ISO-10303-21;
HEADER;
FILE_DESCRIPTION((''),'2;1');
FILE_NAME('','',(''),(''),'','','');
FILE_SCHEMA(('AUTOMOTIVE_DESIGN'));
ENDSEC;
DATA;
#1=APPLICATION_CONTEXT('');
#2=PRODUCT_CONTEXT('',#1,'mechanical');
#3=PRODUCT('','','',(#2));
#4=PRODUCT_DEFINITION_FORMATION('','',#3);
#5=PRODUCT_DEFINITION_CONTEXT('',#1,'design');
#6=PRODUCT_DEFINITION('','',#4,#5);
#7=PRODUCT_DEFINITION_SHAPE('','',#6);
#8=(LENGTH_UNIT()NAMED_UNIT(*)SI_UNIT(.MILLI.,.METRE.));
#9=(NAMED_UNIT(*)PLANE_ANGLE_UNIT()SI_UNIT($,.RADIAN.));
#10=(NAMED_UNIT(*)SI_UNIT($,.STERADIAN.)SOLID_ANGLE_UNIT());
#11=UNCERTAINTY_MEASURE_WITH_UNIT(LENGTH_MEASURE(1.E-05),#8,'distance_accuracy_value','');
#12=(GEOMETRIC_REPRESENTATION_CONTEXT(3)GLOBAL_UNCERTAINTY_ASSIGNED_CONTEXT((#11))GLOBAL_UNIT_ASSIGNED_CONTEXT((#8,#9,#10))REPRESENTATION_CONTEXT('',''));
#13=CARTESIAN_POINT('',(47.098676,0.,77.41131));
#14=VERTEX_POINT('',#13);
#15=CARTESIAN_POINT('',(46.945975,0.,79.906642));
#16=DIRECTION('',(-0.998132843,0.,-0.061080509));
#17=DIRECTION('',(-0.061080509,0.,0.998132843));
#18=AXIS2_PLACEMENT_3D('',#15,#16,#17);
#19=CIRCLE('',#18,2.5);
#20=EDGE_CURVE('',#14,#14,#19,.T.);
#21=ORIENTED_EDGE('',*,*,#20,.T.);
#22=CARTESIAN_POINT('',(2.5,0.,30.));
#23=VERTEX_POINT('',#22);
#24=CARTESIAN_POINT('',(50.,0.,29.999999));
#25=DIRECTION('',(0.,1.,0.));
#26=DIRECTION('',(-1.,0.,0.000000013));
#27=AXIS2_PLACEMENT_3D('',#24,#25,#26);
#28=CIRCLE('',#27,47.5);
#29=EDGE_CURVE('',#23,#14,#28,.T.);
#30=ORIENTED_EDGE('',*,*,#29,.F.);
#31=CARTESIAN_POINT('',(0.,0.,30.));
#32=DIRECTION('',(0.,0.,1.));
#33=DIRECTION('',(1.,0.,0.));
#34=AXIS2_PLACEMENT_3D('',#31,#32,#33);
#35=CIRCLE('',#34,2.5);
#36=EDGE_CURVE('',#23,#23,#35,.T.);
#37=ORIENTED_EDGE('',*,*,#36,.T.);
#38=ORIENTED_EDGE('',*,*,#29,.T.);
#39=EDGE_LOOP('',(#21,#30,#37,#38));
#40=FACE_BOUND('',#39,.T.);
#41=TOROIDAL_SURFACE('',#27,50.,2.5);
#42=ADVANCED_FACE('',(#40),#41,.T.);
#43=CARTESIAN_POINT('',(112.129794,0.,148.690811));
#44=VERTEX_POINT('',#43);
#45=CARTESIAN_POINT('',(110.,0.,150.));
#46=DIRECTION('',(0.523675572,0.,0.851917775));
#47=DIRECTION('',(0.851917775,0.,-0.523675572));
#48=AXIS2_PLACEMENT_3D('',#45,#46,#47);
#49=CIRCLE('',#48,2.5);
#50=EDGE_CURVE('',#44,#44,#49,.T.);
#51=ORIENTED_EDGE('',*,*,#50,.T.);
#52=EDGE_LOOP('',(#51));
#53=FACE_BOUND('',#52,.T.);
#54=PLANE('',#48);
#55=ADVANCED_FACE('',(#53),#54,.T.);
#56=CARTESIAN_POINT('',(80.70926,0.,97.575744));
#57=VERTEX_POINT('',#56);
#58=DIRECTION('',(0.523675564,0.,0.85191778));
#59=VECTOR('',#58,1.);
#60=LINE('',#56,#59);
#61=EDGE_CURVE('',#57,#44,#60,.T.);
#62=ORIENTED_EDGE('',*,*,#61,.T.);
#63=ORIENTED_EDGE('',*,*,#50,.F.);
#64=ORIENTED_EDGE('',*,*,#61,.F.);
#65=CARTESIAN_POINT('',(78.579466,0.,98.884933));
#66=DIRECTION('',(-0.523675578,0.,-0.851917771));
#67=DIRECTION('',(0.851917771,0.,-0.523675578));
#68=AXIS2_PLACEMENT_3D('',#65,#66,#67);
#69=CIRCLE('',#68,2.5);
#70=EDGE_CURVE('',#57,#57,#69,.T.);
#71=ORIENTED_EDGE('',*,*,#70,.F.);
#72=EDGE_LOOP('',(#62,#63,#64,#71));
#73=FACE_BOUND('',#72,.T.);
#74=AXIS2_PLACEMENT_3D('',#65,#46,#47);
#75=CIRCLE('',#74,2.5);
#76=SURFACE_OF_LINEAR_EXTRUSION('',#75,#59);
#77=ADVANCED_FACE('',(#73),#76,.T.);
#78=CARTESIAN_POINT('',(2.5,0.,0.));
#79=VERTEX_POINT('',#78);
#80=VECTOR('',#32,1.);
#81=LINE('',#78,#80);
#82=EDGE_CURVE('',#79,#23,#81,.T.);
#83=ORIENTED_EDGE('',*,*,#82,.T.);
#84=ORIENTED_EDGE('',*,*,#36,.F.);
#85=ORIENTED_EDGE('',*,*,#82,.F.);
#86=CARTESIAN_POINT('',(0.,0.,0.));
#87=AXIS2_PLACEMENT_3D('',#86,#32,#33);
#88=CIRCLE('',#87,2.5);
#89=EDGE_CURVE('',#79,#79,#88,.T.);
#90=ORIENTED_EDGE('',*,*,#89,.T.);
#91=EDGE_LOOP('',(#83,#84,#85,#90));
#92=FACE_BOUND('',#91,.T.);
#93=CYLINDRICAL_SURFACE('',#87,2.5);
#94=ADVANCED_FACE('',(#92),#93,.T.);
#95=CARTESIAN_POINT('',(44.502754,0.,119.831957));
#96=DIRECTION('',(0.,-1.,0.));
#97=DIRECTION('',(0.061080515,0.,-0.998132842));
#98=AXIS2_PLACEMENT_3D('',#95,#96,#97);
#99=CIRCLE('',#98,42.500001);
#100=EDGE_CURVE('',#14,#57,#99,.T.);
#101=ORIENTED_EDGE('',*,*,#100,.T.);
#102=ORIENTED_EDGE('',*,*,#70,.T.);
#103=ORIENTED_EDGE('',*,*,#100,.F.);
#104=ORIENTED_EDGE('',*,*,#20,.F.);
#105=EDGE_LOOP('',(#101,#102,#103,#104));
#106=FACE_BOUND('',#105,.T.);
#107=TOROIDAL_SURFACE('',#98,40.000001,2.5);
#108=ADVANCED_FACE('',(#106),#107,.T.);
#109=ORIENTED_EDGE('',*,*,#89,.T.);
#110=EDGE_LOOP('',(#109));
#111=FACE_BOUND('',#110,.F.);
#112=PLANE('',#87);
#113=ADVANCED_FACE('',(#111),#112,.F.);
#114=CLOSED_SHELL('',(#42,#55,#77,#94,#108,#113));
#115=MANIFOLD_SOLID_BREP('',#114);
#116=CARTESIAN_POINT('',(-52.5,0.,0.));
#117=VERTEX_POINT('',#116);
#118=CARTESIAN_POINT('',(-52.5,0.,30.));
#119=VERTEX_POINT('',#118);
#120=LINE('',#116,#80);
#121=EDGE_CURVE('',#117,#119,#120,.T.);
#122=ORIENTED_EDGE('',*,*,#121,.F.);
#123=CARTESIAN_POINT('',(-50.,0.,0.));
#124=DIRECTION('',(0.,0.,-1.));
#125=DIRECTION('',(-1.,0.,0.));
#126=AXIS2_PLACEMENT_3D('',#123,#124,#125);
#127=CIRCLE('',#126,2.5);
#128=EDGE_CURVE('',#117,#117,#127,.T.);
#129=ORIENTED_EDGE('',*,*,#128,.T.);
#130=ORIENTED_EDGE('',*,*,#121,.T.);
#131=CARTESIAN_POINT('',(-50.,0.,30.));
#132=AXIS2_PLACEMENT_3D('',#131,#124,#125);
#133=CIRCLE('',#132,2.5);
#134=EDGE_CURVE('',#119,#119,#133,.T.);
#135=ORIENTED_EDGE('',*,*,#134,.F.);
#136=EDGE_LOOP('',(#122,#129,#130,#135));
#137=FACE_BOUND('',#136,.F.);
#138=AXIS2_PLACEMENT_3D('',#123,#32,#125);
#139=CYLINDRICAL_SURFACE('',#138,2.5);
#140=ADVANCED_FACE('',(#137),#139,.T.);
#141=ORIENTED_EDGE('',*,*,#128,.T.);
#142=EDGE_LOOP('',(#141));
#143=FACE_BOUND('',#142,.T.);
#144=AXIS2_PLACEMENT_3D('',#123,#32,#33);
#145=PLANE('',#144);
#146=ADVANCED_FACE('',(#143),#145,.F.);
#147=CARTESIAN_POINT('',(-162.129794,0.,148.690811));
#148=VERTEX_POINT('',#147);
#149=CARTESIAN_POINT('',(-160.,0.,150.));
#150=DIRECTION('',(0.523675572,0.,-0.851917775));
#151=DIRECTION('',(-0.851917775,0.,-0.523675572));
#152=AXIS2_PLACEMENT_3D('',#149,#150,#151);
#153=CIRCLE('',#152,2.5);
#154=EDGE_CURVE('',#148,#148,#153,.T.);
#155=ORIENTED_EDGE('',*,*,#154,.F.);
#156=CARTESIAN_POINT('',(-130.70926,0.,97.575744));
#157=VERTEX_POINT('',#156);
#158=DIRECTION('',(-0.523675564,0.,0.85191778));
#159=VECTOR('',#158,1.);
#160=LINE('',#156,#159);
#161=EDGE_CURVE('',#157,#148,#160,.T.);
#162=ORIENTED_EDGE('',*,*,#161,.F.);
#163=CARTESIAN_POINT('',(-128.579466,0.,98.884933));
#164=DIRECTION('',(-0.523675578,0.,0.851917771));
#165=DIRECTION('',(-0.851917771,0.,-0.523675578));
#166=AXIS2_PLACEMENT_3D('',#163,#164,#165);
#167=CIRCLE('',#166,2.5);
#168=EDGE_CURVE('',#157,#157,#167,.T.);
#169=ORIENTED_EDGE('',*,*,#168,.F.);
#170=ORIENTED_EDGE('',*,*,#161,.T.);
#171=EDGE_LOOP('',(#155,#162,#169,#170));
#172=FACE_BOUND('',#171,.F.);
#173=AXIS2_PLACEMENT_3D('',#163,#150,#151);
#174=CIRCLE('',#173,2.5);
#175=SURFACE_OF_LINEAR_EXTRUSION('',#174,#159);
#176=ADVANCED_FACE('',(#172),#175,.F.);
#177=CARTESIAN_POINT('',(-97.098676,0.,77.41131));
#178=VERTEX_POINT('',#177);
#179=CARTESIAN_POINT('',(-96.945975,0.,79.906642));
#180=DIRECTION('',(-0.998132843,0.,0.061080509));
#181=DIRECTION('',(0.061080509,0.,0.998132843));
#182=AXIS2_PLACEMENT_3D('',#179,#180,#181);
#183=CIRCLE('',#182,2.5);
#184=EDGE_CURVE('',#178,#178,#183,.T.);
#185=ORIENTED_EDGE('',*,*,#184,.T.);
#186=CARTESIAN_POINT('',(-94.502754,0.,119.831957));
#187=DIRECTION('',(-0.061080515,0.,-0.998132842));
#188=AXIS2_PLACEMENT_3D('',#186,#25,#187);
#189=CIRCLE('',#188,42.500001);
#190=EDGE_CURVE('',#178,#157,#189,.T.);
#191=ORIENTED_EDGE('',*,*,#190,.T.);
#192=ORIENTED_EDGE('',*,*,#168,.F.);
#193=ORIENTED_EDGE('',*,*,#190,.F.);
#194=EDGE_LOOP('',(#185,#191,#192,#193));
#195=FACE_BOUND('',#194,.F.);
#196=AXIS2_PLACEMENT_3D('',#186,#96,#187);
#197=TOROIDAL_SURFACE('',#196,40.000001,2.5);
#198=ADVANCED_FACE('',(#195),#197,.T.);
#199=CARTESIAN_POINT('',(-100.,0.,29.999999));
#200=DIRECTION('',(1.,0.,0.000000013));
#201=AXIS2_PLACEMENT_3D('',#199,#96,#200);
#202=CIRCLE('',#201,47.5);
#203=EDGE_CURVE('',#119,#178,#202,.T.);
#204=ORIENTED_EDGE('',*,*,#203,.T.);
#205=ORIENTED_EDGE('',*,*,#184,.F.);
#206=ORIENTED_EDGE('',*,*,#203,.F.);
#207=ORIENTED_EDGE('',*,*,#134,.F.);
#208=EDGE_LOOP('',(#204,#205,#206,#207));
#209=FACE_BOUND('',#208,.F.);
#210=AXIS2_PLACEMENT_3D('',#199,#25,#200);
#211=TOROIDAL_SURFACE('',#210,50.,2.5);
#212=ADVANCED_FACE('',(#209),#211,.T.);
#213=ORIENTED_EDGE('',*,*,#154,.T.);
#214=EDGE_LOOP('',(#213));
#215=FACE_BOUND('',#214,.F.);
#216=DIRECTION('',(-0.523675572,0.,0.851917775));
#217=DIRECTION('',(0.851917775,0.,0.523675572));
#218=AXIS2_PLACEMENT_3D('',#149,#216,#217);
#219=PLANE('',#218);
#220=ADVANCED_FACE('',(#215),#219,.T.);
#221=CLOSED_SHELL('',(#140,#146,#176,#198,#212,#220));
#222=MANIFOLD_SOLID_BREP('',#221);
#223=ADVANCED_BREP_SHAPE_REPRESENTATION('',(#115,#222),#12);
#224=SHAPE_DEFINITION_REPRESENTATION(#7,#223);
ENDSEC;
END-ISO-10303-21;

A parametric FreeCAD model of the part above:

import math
import FreeCAD as App
import Part
import Sketcher

V = App.Vector
Q = App.Units.Quantity

doc = App.newDocument("Part")
body = doc.addObject("PartDesign::Body", "Body")

sketch1 = body.newObject("Sketcher::SketchObject", "Sketch")
sketch1.AttachmentSupport = (doc.getObject("XY_Plane"), [""])
sketch1.MapMode = "FlatFace"
sketch1.addGeometry(Part.Circle(V(0, 0, 0), V(0, 0, 1), 2.5), False)
sketch1.addConstraint([
    Sketcher.Constraint("Coincident", 0, 3, -1, 1),
    Sketcher.Constraint("Diameter", 0, Q("5 mm")),
])

sketch2 = body.newObject("Sketcher::SketchObject", "Sketch001")
sketch2.AttachmentSupport = (doc.getObject("XZ_Plane"), [""])
sketch2.MapMode = "FlatFace"
sketch2.addGeometry([
    Part.LineSegment(V(0, 0, 0), V(0, 30, 0)),
    Part.ArcOfCircle(Part.Circle(V(50, 29.999999, 0), V(0, 0, 1), 50), math.radians(93.501835), math.radians(179.999999)),
    Part.ArcOfCircle(Part.Circle(V(44.502754, 119.831957, 0), V(0, 0, 1), 40.000001), math.radians(-86.498165), math.radians(-31.579127)),
    Part.LineSegment(V(78.579466, 98.884933, 0), V(110, 150, 0)),
], False)
sketch2.addConstraint([
    Sketcher.Constraint("Tangent", 0, 2, 1, 2),
    Sketcher.Constraint("Tangent", 1, 1, 2, 1),
    Sketcher.Constraint("Tangent", 2, 2, 3, 1),
    Sketcher.Constraint("Vertical", 0),
    Sketcher.Constraint("Coincident", 0, 1, -1, 1),
    Sketcher.Constraint("Radius", 1, Q("50 mm")),
    Sketcher.Constraint("Radius", 2, Q("40.000001 mm")),
    Sketcher.Constraint("DistanceY", 0, 1, 0, 2, Q("30 mm")),
    Sketcher.Constraint("Distance", 3, Q("60 mm")),
    Sketcher.Constraint("DistanceX", -1, 1, 3, 2, Q("110 mm")),
    Sketcher.Constraint("DistanceY", -1, 1, 3, 2, Q("150 mm")),
])
doc.recompute()

additivepipe = body.newObject("PartDesign::AdditivePipe", "AdditivePipe")
additivepipe.Profile = sketch1
additivepipe.Spine = (sketch2, ["Edge1", "Edge2", "Edge3", "Edge4"])
body2 = doc.addObject("PartDesign::Body", "Body001")
doc.recompute()

mirroring = doc.addObject("Part::Mirroring", "Mirroring")
mirroring.Source = body
mirroring.Base = V(-25, 0, 0)
mirroring.Normal = V(1, 0, 0)
body2.BaseFeature = mirroring
doc.recompute()
mirroring.Visibility = False

doc.recompute()
